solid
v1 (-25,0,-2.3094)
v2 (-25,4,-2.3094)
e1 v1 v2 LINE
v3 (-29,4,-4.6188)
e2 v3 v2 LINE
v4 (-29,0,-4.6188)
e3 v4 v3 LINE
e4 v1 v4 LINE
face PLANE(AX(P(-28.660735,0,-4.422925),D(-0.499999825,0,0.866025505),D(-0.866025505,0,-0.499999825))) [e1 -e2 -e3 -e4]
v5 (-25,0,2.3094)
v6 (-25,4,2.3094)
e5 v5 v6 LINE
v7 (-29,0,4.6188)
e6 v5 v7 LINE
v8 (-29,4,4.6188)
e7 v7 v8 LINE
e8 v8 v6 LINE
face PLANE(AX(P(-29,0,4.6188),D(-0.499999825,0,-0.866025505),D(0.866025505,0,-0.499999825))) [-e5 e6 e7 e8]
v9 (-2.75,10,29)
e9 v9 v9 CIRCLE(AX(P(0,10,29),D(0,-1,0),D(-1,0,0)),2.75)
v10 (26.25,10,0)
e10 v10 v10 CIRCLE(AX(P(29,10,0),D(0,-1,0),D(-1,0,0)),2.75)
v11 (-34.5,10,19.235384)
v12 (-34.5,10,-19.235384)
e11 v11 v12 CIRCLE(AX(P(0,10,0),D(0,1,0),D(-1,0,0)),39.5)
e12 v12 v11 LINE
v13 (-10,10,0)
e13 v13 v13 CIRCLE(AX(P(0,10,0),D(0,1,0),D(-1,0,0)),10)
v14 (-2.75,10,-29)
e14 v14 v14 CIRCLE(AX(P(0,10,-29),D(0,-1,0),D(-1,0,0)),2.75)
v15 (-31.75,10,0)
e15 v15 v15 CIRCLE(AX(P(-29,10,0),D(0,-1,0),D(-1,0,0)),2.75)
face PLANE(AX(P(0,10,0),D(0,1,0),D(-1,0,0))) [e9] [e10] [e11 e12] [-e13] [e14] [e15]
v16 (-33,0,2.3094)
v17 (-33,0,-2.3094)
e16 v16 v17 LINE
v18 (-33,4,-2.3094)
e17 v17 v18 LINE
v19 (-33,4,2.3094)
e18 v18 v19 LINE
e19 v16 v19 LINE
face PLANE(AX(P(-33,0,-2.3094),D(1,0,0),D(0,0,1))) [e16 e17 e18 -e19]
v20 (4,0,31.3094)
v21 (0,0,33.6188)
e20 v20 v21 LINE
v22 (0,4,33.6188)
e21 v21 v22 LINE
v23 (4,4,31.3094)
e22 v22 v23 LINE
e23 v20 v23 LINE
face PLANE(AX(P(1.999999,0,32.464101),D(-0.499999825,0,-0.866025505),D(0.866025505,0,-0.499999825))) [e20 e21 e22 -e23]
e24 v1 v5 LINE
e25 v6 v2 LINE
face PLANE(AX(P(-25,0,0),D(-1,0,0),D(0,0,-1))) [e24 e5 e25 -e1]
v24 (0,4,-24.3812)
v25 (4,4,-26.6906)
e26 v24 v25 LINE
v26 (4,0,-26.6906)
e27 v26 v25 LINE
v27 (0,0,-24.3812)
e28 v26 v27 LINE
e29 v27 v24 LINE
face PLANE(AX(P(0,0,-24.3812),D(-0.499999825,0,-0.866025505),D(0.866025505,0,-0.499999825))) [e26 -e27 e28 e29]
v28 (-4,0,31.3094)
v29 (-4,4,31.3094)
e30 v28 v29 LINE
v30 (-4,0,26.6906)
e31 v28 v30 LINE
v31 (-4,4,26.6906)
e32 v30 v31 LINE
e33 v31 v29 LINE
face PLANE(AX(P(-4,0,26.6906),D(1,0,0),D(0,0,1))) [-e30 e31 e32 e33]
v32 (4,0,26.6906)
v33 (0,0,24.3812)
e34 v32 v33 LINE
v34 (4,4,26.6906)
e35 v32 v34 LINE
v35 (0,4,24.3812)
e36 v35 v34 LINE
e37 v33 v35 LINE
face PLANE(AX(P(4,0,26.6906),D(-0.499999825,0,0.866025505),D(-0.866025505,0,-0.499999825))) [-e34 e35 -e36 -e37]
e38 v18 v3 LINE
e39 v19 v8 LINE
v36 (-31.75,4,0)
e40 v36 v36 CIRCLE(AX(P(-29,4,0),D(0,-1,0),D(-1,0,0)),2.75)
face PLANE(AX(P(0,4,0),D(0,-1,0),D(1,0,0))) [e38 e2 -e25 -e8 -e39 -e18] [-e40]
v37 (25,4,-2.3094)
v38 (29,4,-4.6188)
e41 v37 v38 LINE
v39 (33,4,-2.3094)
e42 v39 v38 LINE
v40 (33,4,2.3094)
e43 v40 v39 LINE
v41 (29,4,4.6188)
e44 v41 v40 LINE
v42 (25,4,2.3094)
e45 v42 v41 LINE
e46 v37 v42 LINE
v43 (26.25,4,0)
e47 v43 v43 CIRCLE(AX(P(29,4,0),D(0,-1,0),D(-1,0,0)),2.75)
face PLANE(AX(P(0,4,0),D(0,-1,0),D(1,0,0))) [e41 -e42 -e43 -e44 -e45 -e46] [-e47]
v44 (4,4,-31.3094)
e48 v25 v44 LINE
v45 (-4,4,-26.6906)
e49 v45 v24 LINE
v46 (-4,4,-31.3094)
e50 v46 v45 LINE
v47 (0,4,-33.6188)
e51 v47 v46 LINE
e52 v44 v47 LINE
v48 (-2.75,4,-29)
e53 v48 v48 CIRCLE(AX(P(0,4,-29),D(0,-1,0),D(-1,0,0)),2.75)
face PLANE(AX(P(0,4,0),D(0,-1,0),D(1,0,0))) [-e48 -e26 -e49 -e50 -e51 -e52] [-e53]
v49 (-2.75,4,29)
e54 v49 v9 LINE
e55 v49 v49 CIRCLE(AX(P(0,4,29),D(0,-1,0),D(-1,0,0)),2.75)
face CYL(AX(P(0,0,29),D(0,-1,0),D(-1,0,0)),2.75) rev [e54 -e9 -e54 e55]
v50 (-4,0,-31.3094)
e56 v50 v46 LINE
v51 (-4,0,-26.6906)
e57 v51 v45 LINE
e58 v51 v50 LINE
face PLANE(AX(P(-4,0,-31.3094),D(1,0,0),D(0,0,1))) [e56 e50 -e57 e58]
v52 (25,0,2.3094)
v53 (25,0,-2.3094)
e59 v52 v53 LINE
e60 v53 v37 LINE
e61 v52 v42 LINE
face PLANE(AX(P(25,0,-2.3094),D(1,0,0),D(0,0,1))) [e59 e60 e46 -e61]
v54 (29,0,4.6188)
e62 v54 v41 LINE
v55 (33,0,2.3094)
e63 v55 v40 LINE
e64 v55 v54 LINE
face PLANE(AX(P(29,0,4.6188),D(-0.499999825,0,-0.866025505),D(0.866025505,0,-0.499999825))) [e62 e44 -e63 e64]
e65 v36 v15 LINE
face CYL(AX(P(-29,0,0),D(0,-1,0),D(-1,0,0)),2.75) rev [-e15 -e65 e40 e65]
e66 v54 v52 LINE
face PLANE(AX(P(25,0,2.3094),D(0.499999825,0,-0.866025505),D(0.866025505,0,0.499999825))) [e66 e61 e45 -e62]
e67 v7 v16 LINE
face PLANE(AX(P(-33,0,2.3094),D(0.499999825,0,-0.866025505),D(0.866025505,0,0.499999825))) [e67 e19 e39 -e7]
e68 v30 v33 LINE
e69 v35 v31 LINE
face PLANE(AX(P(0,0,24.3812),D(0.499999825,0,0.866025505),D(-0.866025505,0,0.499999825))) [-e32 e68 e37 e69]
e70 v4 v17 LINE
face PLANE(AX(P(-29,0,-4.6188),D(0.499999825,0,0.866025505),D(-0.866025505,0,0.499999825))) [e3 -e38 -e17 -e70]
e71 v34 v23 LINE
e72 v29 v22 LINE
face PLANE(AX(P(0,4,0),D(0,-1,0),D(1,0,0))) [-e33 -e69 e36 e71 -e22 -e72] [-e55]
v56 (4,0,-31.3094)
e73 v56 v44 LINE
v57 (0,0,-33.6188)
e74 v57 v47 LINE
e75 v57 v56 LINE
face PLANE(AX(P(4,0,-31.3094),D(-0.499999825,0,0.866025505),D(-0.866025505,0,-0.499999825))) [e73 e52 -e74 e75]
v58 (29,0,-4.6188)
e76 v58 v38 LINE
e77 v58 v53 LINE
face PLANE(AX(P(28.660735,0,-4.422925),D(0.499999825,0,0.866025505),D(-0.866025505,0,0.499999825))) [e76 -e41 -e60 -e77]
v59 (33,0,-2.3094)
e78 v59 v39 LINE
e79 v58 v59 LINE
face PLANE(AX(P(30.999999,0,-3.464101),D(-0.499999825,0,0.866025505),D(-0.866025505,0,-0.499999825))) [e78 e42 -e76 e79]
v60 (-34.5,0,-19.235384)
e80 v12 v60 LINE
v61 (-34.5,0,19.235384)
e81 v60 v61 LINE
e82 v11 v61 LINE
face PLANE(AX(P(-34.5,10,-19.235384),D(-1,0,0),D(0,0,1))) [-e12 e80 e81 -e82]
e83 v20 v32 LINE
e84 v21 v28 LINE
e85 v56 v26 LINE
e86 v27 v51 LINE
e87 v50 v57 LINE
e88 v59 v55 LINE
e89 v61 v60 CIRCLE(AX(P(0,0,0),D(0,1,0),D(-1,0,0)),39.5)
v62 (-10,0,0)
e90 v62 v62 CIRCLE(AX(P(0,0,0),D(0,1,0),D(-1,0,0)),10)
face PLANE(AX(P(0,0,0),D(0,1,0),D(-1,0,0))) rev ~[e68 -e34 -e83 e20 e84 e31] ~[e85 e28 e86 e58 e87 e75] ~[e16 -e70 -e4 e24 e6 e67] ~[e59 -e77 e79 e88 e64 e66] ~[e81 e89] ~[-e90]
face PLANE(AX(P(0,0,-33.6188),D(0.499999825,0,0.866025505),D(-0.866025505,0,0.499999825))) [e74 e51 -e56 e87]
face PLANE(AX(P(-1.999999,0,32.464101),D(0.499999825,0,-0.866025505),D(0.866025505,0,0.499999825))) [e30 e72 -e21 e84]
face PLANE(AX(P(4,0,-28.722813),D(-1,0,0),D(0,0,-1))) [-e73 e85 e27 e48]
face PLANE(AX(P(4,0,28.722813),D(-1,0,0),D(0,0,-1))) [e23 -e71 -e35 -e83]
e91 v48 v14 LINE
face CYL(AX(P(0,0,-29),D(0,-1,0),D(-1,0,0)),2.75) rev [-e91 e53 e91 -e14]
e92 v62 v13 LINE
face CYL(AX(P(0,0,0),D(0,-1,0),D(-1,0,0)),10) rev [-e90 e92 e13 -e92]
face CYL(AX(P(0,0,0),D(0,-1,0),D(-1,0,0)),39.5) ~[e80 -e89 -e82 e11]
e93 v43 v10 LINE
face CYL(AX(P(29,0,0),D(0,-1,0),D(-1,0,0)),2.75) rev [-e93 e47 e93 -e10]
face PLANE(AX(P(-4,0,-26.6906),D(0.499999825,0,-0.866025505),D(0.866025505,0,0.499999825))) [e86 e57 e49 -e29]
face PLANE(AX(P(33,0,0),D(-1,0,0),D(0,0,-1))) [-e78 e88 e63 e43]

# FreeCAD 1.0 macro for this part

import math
import FreeCAD as App
import Part
import Sketcher
from FreeCAD import Vector
Q = App.Units.Quantity


def add_polygon(sketch, points):
    """Adds a closed chain of lines whose ends are joined by coincident constraints."""
    first, n = sketch.GeometryCount, len(points)
    for a, b in zip(points, points[1:] + points[:1]):
        sketch.addGeometry(Part.LineSegment(App.Vector(*a, 0), App.Vector(*b, 0)), False)
    for i in range(n):
        sketch.addConstraint(Sketcher.Constraint("Coincident", first + i, 2, first + (i + 1) % n, 1))

doc = App.newDocument("Part")
body = doc.addObject("PartDesign::Body", "Body")

sketch1 = doc.addObject("Sketcher::SketchObject", "Sketch")
body.addObject(sketch1)
sketch1.AttachmentSupport = (doc.XZ_Plane, [""])
sketch1.MapMode = "FlatFace"
sketch1.addGeometry([
    Part.Circle(Vector(0, 0, 0), Vector(0, 0, 1), 39.5),
    Part.Circle(Vector(0, 29, 0), Vector(0, 0, 1), 2.8),
    Part.Circle(Vector(29, 0, 0), Vector(0, 0, 1), 2.8),
    Part.Circle(Vector(0, -29, 0), Vector(0, 0, 1), 2.8),
    Part.Circle(Vector(-29, 0, 0), Vector(0, 0, 1), 2.8),
    Part.Circle(Vector(0, 0, 0), Vector(0, 0, 1), 10),
], False)
sketch1.addConstraint([
    Sketcher.Constraint("Coincident", 0, 3, -1, 1),
    Sketcher.Constraint("Coincident", 5, 3, -1, 1),
    Sketcher.Constraint("Equal", 1, 2),
    Sketcher.Constraint("Equal", 2, 3),
    Sketcher.Constraint("Equal", 3, 4),
    Sketcher.Constraint("Symmetric", 1, 3, 3, 3, -1, 1),
    Sketcher.Constraint("Symmetric", 2, 3, 4, 3, -1, 1),
    Sketcher.Constraint("PointOnObject", 1, 3, -2),
    Sketcher.Constraint("PointOnObject", 2, 3, -1),
    Sketcher.Constraint("Diameter", 0, Q("79 mm")),
    Sketcher.Constraint("Diameter", 5, Q("20 mm")),
    Sketcher.Constraint("Diameter", 1, Q("5.5 mm")),
    Sketcher.Constraint("DistanceY", 3, 3, 1, 3, Q("58 mm")),
    Sketcher.Constraint("DistanceX", 4, 3, 2, 3, Q("58 mm")),
])
pad1 = doc.addObject("PartDesign::Pad", "Pad")
body.addObject(pad1)
pad1.Profile = sketch1
pad1.Length = 10
pad1.Reversed = True

sketch2 = doc.addObject("Sketcher::SketchObject", "Sketch001")
body.addObject(sketch2)
sketch2.AttachmentSupport = (doc.XZ_Plane, [""])
sketch2.MapMode = "FlatFace"
add_polygon(sketch2, [(4, -26.7), (0, -24.4), (-4, -26.7), (-4, -31.3), (0, -33.6), (4, -31.3)])
sketch2.addGeometry(Part.Circle(Vector(0, -29, 0), Vector(0, 0, 1), 2.8), False)
add_polygon(sketch2, [(29, -4.6), (33, -2.3), (33, 2.3), (29, 4.6), (25, 2.3), (25, -2.3)])
sketch2.addGeometry(Part.Circle(Vector(29, 0, 0), Vector(0, 0, 1), 2.8), False)
add_polygon(sketch2, [(-29, -4.6), (-25, -2.3), (-25, 2.3), (-29, 4.6), (-33, 2.3), (-33, -2.3)])
sketch2.addGeometry(Part.Circle(Vector(-29, 0, 0), Vector(0, 0, 1), 2.8), False)
add_polygon(sketch2, [(4, 26.7), (4, 31.3), (0, 33.6), (-4, 31.3), (-4, 26.7), (0, 24.4)])
sketch2.addGeometry(Part.Circle(Vector(0, 29, 0), Vector(0, 0, 1), 2.8), False)
sketch2.addConstraint([
    Sketcher.Constraint("Vertical", 2),
    Sketcher.Constraint("Vertical", 5),
    Sketcher.Constraint("Vertical", 8),
    Sketcher.Constraint("Vertical", 11),
    Sketcher.Constraint("Vertical", 15),
    Sketcher.Constraint("Vertical", 18),
    Sketcher.Constraint("Vertical", 21),
    Sketcher.Constraint("Vertical", 24),
    Sketcher.Constraint("Equal", 6, 13),
    Sketcher.Constraint("Equal", 13, 20),
    Sketcher.Constraint("Equal", 20, 27),
    Sketcher.Constraint("Symmetric", 13, 3, 20, 3, -1, 1),
    Sketcher.Constraint("Symmetric", 6, 3, 27, 3, -1, 1),
    Sketcher.Constraint("Symmetric", 10, 2, 14, 2, -1, 1),
    Sketcher.Constraint("Symmetric", 12, 2, 16, 2, -1, 1),
    Sketcher.Constraint("Symmetric", 7, 2, 17, 2, -1, 1),
    Sketcher.Constraint("Symmetric", 9, 2, 19, 2, -1, 1),
    Sketcher.Constraint("Symmetric", 2, 2, 21, 2, -1, 1),
    Sketcher.Constraint("Symmetric", 3, 2, 22, 2, -1, 1),
    Sketcher.Constraint("Symmetric", 4, 2, 23, 2, -1, 1),
    Sketcher.Constraint("Symmetric", 0, 2, 25, 2, -1, 1),
    Sketcher.Constraint("Symmetric", 2, 2, 4, 2, -2),
    Sketcher.Constraint("Symmetric", 9, 2, 16, 2, -2),
    Sketcher.Constraint("PointOnObject", 6, 3, -2),
    Sketcher.Constraint("PointOnObject", 13, 3, -1),
    Sketcher.Constraint("PointOnObject", 0, 2, -2),
    Sketcher.Constraint("PointOnObject", 3, 2, -2),
    Sketcher.Constraint("Parallel", 0, 3),
    Sketcher.Constraint("Parallel", 1, 4),
    Sketcher.Constraint("Parallel", 4, 7),
    Sketcher.Constraint("Parallel", 3, 9),
    Sketcher.Constraint("Parallel", 7, 10),
    Sketcher.Constraint("Parallel", 9, 12),
    Sketcher.Constraint("Parallel", 12, 16),
    Sketcher.Constraint("Parallel", 16, 19),
    Sketcher.Constraint("Parallel", 22, 25),
    Sketcher.Constraint("Parallel", 23, 26),
    Sketcher.Constraint("Horizontal", 8, 2, 10, 2),
    Sketcher.Constraint("Vertical", 13, 3, 9, 2),
    Sketcher.Constraint("Equal", 5, 8),
    Sketcher.Constraint("Equal", 4, 7),
    Sketcher.Constraint("DistanceX", 2, 2, 4, 2, Q("8 mm")),
    Sketcher.Constraint("Diameter", 6, Q("5.5 mm")),
    Sketcher.Constraint("Angle", 0, Q("150 deg")),
    Sketcher.Constraint("DistanceY", 6, 3, -1, 1, Q("29 mm")),
    Sketcher.Constraint("DistanceX", -1, 1, 13, 3, Q("29 mm")),
    Sketcher.Constraint("DistanceY", 4, 2, 7, 2, Q("29 mm")),
    Sketcher.Constraint("DistanceY", 2, 2, 2, 1, Q("4.6188 mm")),
])
pocket1 = doc.addObject("PartDesign::Pocket", "Pocket")
body.addObject(pocket1)
pocket1.Profile = sketch2
pocket1.Length = 4

sketch3 = doc.addObject("Sketcher::SketchObject", "Sketch002")
body.addObject(sketch3)
sketch3.AttachmentSupport = (doc.XZ_Plane, [""])
sketch3.MapMode = "FlatFace"
sketch3.AttachmentOffset = App.Placement(Vector(0, 0, -10), App.Rotation())
sketch3.addGeometry([
    Part.LineSegment(Vector(-34, 19, 0), Vector(-34, -19, 0)),
    Part.ArcOfCircle(Part.Circle(Vector(0, 0, 0), Vector(0, 0, 1), 40), math.radians(151), math.radians(209)),
], False)
sketch3.addConstraint([
    Sketcher.Constraint("Coincident", 0, 1, 1, 1),
    Sketcher.Constraint("Coincident", 1, 2, 0, 2),
    Sketcher.Constraint("Vertical", 0),
    Sketcher.Constraint("Coincident", 1, 3, -1, 1),
    Sketcher.Constraint("Radius", 1, Q("39.5 mm")),
    Sketcher.Constraint("DistanceX", 0, 1, -1, 1, Q("34.5 mm")),
])
pocket2 = doc.addObject("PartDesign::Pocket", "Pocket001")
body.addObject(pocket2)
pocket2.Profile = sketch3
pocket2.Type = "ThroughAll"
pocket2.Midplane = True

doc.recompute()
